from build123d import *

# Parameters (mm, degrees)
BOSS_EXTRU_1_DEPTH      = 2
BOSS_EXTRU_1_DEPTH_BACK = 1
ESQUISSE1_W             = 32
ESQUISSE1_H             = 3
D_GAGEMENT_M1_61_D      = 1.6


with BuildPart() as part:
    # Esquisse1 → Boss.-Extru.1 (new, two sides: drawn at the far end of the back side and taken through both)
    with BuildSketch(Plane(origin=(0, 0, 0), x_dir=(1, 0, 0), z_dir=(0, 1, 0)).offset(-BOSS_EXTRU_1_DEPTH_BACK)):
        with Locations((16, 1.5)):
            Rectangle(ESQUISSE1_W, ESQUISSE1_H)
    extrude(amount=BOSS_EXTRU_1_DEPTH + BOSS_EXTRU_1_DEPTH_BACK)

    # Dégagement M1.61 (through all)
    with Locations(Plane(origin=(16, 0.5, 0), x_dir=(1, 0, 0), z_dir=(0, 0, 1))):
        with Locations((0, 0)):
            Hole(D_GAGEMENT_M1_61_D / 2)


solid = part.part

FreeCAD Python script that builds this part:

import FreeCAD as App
import Part
import Sketcher

V = App.Vector


def add_polygon(sketch, points):
    """Adds a closed chain of lines whose ends are joined by coincident constraints."""
    first, n = sketch.GeometryCount, len(points)
    for a, b in zip(points, points[1:] + points[:1]):
        sketch.addGeometry(Part.LineSegment(App.Vector(*a, 0), App.Vector(*b, 0)), False)
    for i in range(n):
        sketch.addConstraint(Sketcher.Constraint("Coincident", first + i, 2, first + (i + 1) % n, 1))

doc = App.newDocument("Part")
body = doc.addObject("PartDesign::Body", "Body")

# Sketch on XZ plane
sketch1 = body.newObject("Sketcher::SketchObject", "Sketch")
sketch1.AttachmentSupport = (doc.getObject("XZ_Plane"), [""])
sketch1.MapMode = "FlatFace"
add_polygon(sketch1, [(0, -3), (0, 0), (32, 0), (32, -3)])  # lines 0-3
sketch1.addConstraint(Sketcher.Constraint("Vertical", 0))
sketch1.addConstraint(Sketcher.Constraint("Horizontal", 1))
sketch1.addConstraint(Sketcher.Constraint("Vertical", 2))
sketch1.addConstraint(Sketcher.Constraint("Horizontal", 3))
sketch1.addConstraint(Sketcher.Constraint("Coincident", 0, 2, -1, 1))
sketch1.addConstraint(Sketcher.Constraint("DistanceX", 1, 1, 1, 2, 32.0))
sketch1.addConstraint(Sketcher.Constraint("DistanceY", 0, 1, 0, 2, 3.0))
pad1 = body.newObject("PartDesign::Pad", "Pad")
pad1.Profile = sketch1
pad1.Type = "TwoLengths"
pad1.Length = 2
pad1.Length2 = 1
pad1.Reversed = True

# Sketch on XY plane
sketch2 = body.newObject("Sketcher::SketchObject", "Sketch001")
sketch2.AttachmentSupport = (doc.getObject("XY_Plane"), [""])
sketch2.MapMode = "FlatFace"
sketch2.addGeometry(Part.Circle(V(16, 0.5, 0), V(0, 0, 1), 0.8), False)
sketch2.addConstraint(Sketcher.Constraint("Diameter", 0, 1.6))
sketch2.addConstraint(Sketcher.Constraint("DistanceX", -1, 1, 0, 3, 16.0))
sketch2.addConstraint(Sketcher.Constraint("DistanceY", -1, 1, 0, 3, 0.5))
doc.recompute()
hole = body.newObject("PartDesign::Hole", "Hole")
hole.Profile = sketch2
hole.ThreadType = "None"
hole.Diameter = 1.6
hole.DepthType = "ThroughAll"

doc.recompute()
